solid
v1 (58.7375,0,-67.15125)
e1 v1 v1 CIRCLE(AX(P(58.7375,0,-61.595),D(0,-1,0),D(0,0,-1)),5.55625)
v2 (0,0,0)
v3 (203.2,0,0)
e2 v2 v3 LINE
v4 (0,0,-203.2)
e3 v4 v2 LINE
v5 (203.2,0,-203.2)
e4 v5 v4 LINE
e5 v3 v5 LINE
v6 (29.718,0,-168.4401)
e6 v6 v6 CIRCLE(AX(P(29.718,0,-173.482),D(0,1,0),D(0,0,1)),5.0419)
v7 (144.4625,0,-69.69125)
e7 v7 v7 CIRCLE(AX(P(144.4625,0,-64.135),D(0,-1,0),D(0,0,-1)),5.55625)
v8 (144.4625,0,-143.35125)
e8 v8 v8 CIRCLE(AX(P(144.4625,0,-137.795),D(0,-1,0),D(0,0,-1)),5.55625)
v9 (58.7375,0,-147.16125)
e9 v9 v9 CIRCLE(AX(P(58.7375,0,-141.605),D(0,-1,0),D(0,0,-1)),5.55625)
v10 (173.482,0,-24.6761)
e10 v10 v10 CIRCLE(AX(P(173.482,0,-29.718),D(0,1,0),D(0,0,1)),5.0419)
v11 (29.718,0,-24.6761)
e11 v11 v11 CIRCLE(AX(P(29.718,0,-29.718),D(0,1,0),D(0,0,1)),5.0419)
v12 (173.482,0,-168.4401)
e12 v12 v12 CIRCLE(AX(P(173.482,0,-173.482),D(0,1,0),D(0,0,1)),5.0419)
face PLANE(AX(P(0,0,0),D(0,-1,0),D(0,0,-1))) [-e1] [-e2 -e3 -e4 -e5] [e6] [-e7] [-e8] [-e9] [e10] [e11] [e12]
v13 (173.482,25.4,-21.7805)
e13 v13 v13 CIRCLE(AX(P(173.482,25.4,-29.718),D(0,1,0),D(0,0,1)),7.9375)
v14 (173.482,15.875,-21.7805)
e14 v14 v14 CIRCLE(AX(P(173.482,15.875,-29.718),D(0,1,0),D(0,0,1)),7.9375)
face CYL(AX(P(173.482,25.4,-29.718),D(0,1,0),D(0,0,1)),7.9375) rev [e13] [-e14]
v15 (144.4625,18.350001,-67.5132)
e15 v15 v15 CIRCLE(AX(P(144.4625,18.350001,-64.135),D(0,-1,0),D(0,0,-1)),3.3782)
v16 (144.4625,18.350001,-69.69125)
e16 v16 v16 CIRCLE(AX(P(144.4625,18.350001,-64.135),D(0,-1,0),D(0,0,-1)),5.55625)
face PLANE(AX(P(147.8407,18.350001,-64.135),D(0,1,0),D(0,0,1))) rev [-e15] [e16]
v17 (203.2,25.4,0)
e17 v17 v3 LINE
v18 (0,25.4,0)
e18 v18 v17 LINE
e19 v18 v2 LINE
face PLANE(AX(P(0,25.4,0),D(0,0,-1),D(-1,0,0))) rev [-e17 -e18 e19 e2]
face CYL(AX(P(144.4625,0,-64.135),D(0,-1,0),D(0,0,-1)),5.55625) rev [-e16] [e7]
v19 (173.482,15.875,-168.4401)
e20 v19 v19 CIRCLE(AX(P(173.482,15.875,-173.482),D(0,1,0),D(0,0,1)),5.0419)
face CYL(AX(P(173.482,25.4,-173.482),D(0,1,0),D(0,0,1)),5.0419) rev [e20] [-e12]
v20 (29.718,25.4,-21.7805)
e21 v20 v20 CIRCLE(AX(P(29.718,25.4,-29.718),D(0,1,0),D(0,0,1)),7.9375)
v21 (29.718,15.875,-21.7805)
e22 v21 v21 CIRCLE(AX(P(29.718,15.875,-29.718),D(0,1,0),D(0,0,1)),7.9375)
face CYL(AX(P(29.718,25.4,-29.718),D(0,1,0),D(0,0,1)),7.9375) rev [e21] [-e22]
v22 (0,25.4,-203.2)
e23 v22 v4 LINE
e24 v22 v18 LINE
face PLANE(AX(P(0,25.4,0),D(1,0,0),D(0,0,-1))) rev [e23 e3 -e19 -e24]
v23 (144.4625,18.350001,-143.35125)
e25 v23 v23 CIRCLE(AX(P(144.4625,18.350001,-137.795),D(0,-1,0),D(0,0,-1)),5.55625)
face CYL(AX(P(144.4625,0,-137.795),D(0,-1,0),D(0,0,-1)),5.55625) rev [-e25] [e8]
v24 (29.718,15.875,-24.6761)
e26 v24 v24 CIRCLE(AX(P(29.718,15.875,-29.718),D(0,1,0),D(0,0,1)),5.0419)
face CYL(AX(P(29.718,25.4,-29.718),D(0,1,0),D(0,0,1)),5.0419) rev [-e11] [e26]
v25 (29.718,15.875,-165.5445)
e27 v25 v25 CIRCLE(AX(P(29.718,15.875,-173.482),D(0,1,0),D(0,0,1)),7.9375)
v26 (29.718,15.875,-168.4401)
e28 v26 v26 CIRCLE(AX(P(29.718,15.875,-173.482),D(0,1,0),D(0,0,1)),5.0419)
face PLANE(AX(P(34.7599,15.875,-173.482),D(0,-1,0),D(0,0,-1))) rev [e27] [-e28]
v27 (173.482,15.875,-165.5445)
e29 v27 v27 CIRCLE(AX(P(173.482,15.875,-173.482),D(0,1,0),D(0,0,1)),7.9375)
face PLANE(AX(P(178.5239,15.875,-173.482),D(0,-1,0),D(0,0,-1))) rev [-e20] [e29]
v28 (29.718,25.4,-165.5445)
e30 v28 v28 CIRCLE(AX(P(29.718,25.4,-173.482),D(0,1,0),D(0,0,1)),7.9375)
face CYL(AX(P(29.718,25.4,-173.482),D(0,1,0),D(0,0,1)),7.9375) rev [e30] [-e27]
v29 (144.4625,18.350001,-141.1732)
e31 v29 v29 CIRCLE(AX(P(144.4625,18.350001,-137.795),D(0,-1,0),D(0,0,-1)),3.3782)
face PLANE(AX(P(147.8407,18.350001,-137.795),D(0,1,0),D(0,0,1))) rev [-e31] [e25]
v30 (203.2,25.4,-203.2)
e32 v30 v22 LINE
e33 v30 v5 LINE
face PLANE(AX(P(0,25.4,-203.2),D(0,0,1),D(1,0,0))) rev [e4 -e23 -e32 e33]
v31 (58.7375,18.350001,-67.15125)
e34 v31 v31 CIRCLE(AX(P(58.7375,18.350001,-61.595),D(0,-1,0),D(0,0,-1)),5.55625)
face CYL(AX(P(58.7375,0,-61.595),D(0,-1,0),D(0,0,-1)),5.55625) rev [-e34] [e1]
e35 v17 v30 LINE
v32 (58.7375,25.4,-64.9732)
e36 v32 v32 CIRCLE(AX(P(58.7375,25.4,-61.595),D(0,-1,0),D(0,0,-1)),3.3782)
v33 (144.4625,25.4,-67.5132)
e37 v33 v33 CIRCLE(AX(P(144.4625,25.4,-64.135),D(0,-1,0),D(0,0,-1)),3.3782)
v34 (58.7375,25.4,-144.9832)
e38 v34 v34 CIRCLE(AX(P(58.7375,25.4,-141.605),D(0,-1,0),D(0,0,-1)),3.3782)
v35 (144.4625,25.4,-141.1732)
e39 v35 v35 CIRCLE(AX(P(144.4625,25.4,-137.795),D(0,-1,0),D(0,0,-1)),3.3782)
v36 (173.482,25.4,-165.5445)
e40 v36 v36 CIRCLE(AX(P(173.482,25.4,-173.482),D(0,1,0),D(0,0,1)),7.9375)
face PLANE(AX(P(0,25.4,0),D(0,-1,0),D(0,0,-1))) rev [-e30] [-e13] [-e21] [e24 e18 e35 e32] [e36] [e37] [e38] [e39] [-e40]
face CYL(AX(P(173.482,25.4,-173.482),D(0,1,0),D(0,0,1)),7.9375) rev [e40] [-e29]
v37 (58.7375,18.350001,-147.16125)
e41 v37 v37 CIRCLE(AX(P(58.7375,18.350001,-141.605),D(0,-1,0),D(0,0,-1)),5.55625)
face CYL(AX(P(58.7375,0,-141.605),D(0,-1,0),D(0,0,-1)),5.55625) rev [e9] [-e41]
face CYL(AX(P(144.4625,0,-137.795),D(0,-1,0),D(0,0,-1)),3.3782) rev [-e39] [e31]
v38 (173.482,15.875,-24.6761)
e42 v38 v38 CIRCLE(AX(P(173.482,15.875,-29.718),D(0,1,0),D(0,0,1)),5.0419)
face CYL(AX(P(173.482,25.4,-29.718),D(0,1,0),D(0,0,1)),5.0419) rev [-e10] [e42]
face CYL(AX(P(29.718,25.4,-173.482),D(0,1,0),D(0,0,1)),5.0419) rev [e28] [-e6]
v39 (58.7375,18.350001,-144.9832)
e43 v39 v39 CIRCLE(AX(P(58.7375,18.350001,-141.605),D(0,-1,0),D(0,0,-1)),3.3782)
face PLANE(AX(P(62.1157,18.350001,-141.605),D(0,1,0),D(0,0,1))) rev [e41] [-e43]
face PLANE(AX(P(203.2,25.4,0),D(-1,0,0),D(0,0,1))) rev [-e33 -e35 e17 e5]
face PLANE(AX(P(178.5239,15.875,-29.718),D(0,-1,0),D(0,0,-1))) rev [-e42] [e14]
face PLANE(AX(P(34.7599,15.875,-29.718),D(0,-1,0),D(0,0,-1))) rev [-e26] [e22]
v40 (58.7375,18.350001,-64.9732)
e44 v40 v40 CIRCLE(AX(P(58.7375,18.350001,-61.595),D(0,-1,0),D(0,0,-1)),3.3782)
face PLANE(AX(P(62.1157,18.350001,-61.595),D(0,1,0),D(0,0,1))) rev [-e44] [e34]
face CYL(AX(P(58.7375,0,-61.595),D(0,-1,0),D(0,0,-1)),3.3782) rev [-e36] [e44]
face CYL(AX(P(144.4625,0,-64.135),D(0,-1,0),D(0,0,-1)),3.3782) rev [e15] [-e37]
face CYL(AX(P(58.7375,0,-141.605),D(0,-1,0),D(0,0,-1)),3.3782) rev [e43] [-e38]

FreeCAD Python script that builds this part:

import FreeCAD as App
import Part
import Sketcher

V = App.Vector
Q = App.Units.Quantity

doc = App.newDocument("Part")
body = doc.addObject("PartDesign::Body", "Body")

# Sketch on XZ plane
sketch1 = body.newObject("Sketcher::SketchObject", "Sketch")
sketch1.AttachmentSupport = (doc.getObject("XZ_Plane"), [""])
sketch1.MapMode = "FlatFace"
sketch1.addGeometry([
    Part.LineSegment(V(0, -203, 0), V(0, 0, 0)),
    Part.LineSegment(V(0, 0, 0), V(203, 0, 0)),
    Part.LineSegment(V(203, 0, 0), V(203, -203, 0)),
    Part.LineSegment(V(203, -203, 0), V(0, -203, 0)),
], False)
sketch1.addConstraint([
    Sketcher.Constraint("Coincident", 0, 2, 1, 1),
    Sketcher.Constraint("Coincident", 1, 2, 2, 1),
    Sketcher.Constraint("Coincident", 2, 2, 3, 1),
    Sketcher.Constraint("Coincident", 3, 2, 0, 1),
    Sketcher.Constraint("Vertical", 0),
    Sketcher.Constraint("Horizontal", 1),
    Sketcher.Constraint("Vertical", 2),
    Sketcher.Constraint("Horizontal", 3),
    Sketcher.Constraint("Coincident", 0, 2, -1, 1),
    Sketcher.Constraint("Equal", 3, 0),
    Sketcher.Constraint("DistanceX", 1, 1, 1, 2, Q("8 in")),
])
pad1 = body.newObject("PartDesign::Pad", "Pad")
pad1.Profile = sketch1
pad1.Length = Q("1 in")
pad1.Reversed = True

# Sketch on XZ plane
sketch2 = body.newObject("Sketcher::SketchObject", "Sketch001")
sketch2.AttachmentSupport = (doc.getObject("XZ_Plane"), [""])
sketch2.MapMode = "FlatFace"
sketch2.addGeometry([
    Part.Circle(V(144.5, -64.1, 0), V(0, 0, 1), 3.4),
    Part.Circle(V(58.7, -61.6, 0), V(0, 0, 1), 3.4),
    Part.Circle(V(58.7, -141.6, 0), V(0, 0, 1), 3.4),
    Part.Circle(V(144.5, -137.8, 0), V(0, 0, 1), 3.4),
], False)
sketch2.addConstraint([
    Sketcher.Constraint("Equal", 0, 1),
    Sketcher.Constraint("Equal", 1, 2),
    Sketcher.Constraint("Equal", 2, 3),
    Sketcher.Constraint("Vertical", 1, 3, 2, 3),
    Sketcher.Constraint("Vertical", 0, 3, 3, 3),
    Sketcher.Constraint("Diameter", 0, Q("0.266 in")),
    Sketcher.Constraint("DistanceY", 3, 3, 1, 3, Q("3 in")),
    Sketcher.Constraint("DistanceY", 0, 3, 1, 3, Q("0.1 in")),
    Sketcher.Constraint("DistanceY", 2, 3, 1, 3, Q("3.15 in")),
    Sketcher.Constraint("DistanceX", -1, 1, 0, 3, Q("5.6875 in")),
    Sketcher.Constraint("DistanceY", 0, 3, -1, 1, Q("2.525 in")),
    Sketcher.Constraint("DistanceX", -1, 1, 1, 3, Q("2.3125 in")),
])
doc.recompute()
hole = body.newObject("PartDesign::Hole", "Hole")
hole.Profile = sketch2
hole.ThreadType = "None"
hole.Diameter = Q("0.266 in")
hole.DepthType = "ThroughAll"
hole.HoleCutType = "Counterbore"
hole.HoleCutDiameter = Q("0.4375 in")
hole.HoleCutDepth = 18.350001

# Sketch on XZ plane
sketch3 = body.newObject("Sketcher::SketchObject", "Sketch002")
sketch3.AttachmentSupport = (doc.getObject("XZ_Plane"), [""])
sketch3.MapMode = "FlatFace"
sketch3.AttachmentOffset = App.Placement(V(0, 0, -1 * 25.4), App.Rotation())
sketch3.addGeometry([
    Part.Circle(V(30, -173, 0), V(0, 0, 1), 5),
    Part.Circle(V(30, -30, 0), V(0, 0, 1), 5),
    Part.Circle(V(173, -30, 0), V(0, 0, 1), 5),
    Part.Circle(V(173, -173, 0), V(0, 0, 1), 5),
], False)
sketch3.addConstraint([
    Sketcher.Constraint("Equal", 0, 1),
    Sketcher.Constraint("Equal", 1, 2),
    Sketcher.Constraint("Equal", 2, 3),
    Sketcher.Constraint("Horizontal", 1, 3, 2, 3),
    Sketcher.Constraint("Horizontal", 0, 3, 3, 3),
    Sketcher.Constraint("Vertical", 0, 3, 1, 3),
    Sketcher.Constraint("Vertical", 2, 3, 3, 3),
    Sketcher.Constraint("Diameter", 0, Q("0.397 in")),
    Sketcher.Constraint("DistanceX", -1, 1, 0, 3, Q("1.17 in")),
    Sketcher.Constraint("DistanceY", 0, 3, -1, 1, Q("6.83 in")),
    Sketcher.Constraint("DistanceY", 1, 3, -1, 1, Q("1.17 in")),
    Sketcher.Constraint("DistanceX", -1, 1, 2, 3, Q("6.83 in")),
])
doc.recompute()
hole2 = body.newObject("PartDesign::Hole", "Hole001")
hole2.Profile = sketch3
hole2.ThreadType = "None"
hole2.Diameter = Q("0.397 in")
hole2.DepthType = "ThroughAll"
hole2.HoleCutType = "Counterbore"
hole2.HoleCutDiameter = Q("0.625 in")
hole2.HoleCutDepth = Q("0.375 in")
hole2.Reversed = True

doc.recompute()
